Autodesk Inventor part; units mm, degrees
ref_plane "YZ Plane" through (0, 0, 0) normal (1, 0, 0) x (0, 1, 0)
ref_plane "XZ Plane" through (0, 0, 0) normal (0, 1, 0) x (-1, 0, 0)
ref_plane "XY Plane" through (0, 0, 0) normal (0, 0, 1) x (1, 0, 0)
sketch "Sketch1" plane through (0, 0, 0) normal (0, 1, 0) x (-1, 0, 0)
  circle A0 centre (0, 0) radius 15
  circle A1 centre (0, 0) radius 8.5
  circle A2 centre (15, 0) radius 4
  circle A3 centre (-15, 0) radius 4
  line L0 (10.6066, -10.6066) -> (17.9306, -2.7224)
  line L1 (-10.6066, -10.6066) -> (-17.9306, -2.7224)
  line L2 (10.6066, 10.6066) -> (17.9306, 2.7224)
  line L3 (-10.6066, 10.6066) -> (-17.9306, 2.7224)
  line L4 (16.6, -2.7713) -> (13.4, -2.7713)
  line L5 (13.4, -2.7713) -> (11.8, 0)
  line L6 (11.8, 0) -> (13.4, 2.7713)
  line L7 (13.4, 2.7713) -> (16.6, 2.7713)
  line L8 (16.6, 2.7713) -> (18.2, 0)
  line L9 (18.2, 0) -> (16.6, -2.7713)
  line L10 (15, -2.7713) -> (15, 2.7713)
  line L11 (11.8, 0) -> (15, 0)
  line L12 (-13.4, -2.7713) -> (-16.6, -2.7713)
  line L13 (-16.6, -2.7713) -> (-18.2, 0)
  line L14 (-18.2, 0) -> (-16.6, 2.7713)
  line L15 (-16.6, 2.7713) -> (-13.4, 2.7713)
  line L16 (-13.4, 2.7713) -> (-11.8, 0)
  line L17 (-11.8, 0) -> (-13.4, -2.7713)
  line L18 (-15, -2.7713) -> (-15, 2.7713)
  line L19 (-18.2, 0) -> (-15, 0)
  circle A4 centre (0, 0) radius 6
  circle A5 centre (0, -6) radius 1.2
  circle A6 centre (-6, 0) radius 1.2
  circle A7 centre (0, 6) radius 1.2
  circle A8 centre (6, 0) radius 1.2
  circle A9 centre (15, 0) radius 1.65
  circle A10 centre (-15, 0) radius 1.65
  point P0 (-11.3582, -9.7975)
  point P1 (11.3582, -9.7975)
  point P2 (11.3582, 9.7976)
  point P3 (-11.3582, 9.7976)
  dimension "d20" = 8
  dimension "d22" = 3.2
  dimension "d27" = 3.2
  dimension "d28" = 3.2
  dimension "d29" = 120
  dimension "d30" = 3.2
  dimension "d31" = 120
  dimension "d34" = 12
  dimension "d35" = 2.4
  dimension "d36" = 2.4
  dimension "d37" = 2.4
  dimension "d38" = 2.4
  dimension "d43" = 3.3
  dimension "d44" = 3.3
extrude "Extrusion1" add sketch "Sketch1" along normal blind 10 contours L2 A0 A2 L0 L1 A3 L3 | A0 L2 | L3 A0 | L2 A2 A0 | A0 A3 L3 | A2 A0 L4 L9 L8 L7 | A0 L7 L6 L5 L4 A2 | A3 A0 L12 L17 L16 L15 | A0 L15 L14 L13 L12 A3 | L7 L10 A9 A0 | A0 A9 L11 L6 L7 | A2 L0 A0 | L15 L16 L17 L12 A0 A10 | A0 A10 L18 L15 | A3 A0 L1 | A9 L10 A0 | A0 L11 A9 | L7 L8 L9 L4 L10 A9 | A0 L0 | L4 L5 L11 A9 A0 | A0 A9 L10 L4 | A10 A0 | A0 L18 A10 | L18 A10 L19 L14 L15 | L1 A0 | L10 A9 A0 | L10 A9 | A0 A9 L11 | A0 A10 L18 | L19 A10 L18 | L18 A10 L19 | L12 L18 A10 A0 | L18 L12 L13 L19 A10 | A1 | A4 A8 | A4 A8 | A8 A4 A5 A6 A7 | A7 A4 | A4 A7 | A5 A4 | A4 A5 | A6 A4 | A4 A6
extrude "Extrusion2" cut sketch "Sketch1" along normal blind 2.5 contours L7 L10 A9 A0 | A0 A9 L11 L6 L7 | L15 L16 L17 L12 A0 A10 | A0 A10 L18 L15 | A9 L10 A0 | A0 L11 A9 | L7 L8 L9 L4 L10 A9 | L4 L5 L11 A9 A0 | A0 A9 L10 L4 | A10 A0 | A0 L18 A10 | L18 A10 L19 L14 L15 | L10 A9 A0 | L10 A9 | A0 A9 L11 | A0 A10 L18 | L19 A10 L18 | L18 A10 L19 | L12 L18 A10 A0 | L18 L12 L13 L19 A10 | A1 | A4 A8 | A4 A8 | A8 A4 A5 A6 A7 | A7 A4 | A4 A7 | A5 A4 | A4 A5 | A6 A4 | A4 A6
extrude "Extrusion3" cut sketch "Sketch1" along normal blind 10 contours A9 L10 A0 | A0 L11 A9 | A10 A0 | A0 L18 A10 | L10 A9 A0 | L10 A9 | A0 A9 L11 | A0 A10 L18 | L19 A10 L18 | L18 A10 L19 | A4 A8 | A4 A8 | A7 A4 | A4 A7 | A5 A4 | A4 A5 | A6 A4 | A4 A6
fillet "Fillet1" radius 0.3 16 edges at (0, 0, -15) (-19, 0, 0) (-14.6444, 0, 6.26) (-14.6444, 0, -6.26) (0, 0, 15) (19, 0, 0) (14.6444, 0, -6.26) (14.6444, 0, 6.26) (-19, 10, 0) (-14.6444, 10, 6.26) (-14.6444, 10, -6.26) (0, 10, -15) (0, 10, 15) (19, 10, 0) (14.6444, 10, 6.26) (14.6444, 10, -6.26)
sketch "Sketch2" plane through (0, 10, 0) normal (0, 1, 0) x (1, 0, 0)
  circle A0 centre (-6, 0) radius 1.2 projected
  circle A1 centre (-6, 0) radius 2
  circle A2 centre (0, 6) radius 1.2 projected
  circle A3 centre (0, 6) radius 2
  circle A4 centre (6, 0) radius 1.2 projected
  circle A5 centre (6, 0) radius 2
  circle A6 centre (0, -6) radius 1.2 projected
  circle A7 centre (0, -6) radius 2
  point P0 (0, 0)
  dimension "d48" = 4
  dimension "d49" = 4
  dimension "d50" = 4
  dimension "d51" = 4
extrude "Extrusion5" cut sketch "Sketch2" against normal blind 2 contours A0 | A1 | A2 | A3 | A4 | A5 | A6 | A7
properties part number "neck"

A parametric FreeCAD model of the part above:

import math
import FreeCAD as App
import Part
import Sketcher
Q = App.Units.Quantity


def edges_at(feature, points):
    """Names of the edges that pass closest to the given points."""
    edges = feature.Shape.Edges
    near = lambda p: min(range(len(edges)), key=lambda i: edges[i].distToShape(Part.Vertex(*p))[0])
    return sorted({f"Edge{near(p) + 1}" for p in points})

doc = App.newDocument("Part")
body = doc.addObject("PartDesign::Body", "Body")

# Sketch on XZ plane
sketch1 = body.newObject("Sketcher::SketchObject", "Sketch")
sketch1.AttachmentSupport = (doc.getObject("XZ_Plane"), [""])
sketch1.MapMode = "FlatFace"
sketch1.addGeometry(Part.LineSegment(App.Vector(-11.358239, -9.79747, 0), App.Vector(-17.9306, -2.7224, 0)), False)
sketch1.addGeometry(Part.ArcOfCircle(Part.Circle(App.Vector(-15, 0, 0), App.Vector(0, 0, 1), 4), math.radians(137.10925), math.radians(222.89075)), False)
sketch1.addGeometry(Part.LineSegment(App.Vector(-17.9306, 2.7224, 0), App.Vector(-11.358239, 9.79747, 0)), False)
sketch1.addGeometry(Part.ArcOfCircle(Part.Circle(App.Vector(0, 0, 0), App.Vector(0, 0, 1), 15), math.radians(40.780631), math.radians(139.219369)), False)
sketch1.addGeometry(Part.LineSegment(App.Vector(11.358239, 9.79747, 0), App.Vector(17.9306, 2.7224, 0)), False)
sketch1.addGeometry(Part.ArcOfCircle(Part.Circle(App.Vector(15, 0, 0), App.Vector(0, 0, 1), 4), math.radians(-42.89075), math.radians(42.89075)), False)
sketch1.addGeometry(Part.LineSegment(App.Vector(17.9306, -2.7224, 0), App.Vector(11.358239, -9.79747, 0)), False)
sketch1.addGeometry(Part.ArcOfCircle(Part.Circle(App.Vector(0, 0, 0), App.Vector(0, 0, 1), 15), math.radians(-139.219369), math.radians(-40.780631)), False)
sketch1.addConstraint(Sketcher.Constraint("Tangent", 0, 2, 1, 2))
sketch1.addConstraint(Sketcher.Constraint("Tangent", 1, 1, 2, 1))
sketch1.addConstraint(Sketcher.Constraint("Coincident", 2, 2, 3, 2))
sketch1.addConstraint(Sketcher.Constraint("Coincident", 3, 1, 4, 1))
sketch1.addConstraint(Sketcher.Constraint("Tangent", 4, 2, 5, 2))
sketch1.addConstraint(Sketcher.Constraint("Tangent", 5, 1, 6, 1))
sketch1.addConstraint(Sketcher.Constraint("Coincident", 6, 2, 7, 2))
sketch1.addConstraint(Sketcher.Constraint("Coincident", 7, 1, 0, 1))
sketch1.addConstraint(Sketcher.Constraint("Coincident", 3, 3, -1, 1))
sketch1.addConstraint(Sketcher.Constraint("Coincident", 7, 3, -1, 1))
sketch1.addConstraint(Sketcher.Constraint("Equal", 1, 5))
sketch1.addConstraint(Sketcher.Constraint("Equal", 3, 7))
sketch1.addConstraint(Sketcher.Constraint("Symmetric", 1, 3, 5, 3, -1, 1))
sketch1.addConstraint(Sketcher.Constraint("Symmetric", 1, 1, 4, 2, -2))
sketch1.addConstraint(Sketcher.Constraint("Parallel", 0, 4))
sketch1.addConstraint(Sketcher.Constraint("Parallel", 2, 6))
sketch1.addConstraint(Sketcher.Constraint("Radius", 1, Q("4 mm")))
sketch1.addConstraint(Sketcher.Constraint("Radius", 3, Q("15 mm")))
sketch1.addConstraint(Sketcher.Constraint("DistanceX", 1, 3, -1, 1, Q("15 mm")))
sketch1.addConstraint(Sketcher.Constraint("Angle", 0, Q("132.8904 deg")))
pad1 = body.newObject("PartDesign::Pad", "Pad")
pad1.Profile = sketch1
pad1.Length = 10
pad1.Reversed = True

# Sketch on XZ plane
sketch2 = body.newObject("Sketcher::SketchObject", "Sketch001")
sketch2.AttachmentSupport = (doc.getObject("XZ_Plane"), [""])
sketch2.MapMode = "FlatFace"
sketch2.addGeometry(Part.LineSegment(App.Vector(-13.4, 2.7713, 0), App.Vector(-11.8, 0, 0)), False)
sketch2.addGeometry(Part.LineSegment(App.Vector(-11.8, 0, 0), App.Vector(-13.4, -2.7713, 0)), False)
sketch2.addGeometry(Part.LineSegment(App.Vector(-13.4, -2.7713, 0), App.Vector(-16.6, -2.7713, 0)), False)
sketch2.addGeometry(Part.LineSegment(App.Vector(-16.6, -2.7713, 0), App.Vector(-18.2, 0, 0)), False)
sketch2.addGeometry(Part.LineSegment(App.Vector(-18.2, 0, 0), App.Vector(-16.6, 2.7713, 0)), False)
sketch2.addGeometry(Part.LineSegment(App.Vector(-16.6, 2.7713, 0), App.Vector(-13.4, 2.7713, 0)), False)
sketch2.addGeometry(Part.LineSegment(App.Vector(13.4, 2.7713, 0), App.Vector(16.6, 2.7713, 0)), False)
sketch2.addGeometry(Part.LineSegment(App.Vector(16.6, 2.7713, 0), App.Vector(18.2, 0, 0)), False)
sketch2.addGeometry(Part.LineSegment(App.Vector(18.2, 0, 0), App.Vector(16.6, -2.7713, 0)), False)
sketch2.addGeometry(Part.LineSegment(App.Vector(16.6, -2.7713, 0), App.Vector(13.4, -2.7713, 0)), False)
sketch2.addGeometry(Part.LineSegment(App.Vector(13.4, -2.7713, 0), App.Vector(11.8, 0, 0)), False)
sketch2.addGeometry(Part.LineSegment(App.Vector(11.8, 0, 0), App.Vector(13.4, 2.7713, 0)), False)
sketch2.addGeometry(Part.Circle(App.Vector(0, 0, 0), App.Vector(0, 0, 1), 8.5), False)
sketch2.addConstraint(Sketcher.Constraint("Coincident", 0, 2, 1, 1))
sketch2.addConstraint(Sketcher.Constraint("Coincident", 1, 2, 2, 1))
sketch2.addConstraint(Sketcher.Constraint("Coincident", 2, 2, 3, 1))
sketch2.addConstraint(Sketcher.Constraint("Coincident", 3, 2, 4, 1))
sketch2.addConstraint(Sketcher.Constraint("Coincident", 4, 2, 5, 1))
sketch2.addConstraint(Sketcher.Constraint("Coincident", 5, 2, 0, 1))
sketch2.addConstraint(Sketcher.Constraint("Coincident", 6, 2, 7, 1))
sketch2.addConstraint(Sketcher.Constraint("Coincident", 7, 2, 8, 1))
sketch2.addConstraint(Sketcher.Constraint("Coincident", 8, 2, 9, 1))
sketch2.addConstraint(Sketcher.Constraint("Coincident", 9, 2, 10, 1))
sketch2.addConstraint(Sketcher.Constraint("Coincident", 10, 2, 11, 1))
sketch2.addConstraint(Sketcher.Constraint("Coincident", 11, 2, 6, 1))
sketch2.addConstraint(Sketcher.Constraint("Horizontal", 2))
sketch2.addConstraint(Sketcher.Constraint("Horizontal", 5))
sketch2.addConstraint(Sketcher.Constraint("Horizontal", 6))
sketch2.addConstraint(Sketcher.Constraint("Horizontal", 9))
sketch2.addConstraint(Sketcher.Constraint("Coincident", 12, 3, -1, 1))
sketch2.addConstraint(Sketcher.Constraint("Symmetric", 2, 2, 6, 2, -1, 1))
sketch2.addConstraint(Sketcher.Constraint("Symmetric", 3, 2, 7, 2, -1, 1))
sketch2.addConstraint(Sketcher.Constraint("Symmetric", 4, 2, 8, 2, -1, 1))
sketch2.addConstraint(Sketcher.Constraint("Symmetric", 0, 2, 10, 2, -1, 1))
sketch2.addConstraint(Sketcher.Constraint("Symmetric", 4, 2, 6, 2, -2))
sketch2.addConstraint(Sketcher.Constraint("PointOnObject", 0, 2, -1))
sketch2.addConstraint(Sketcher.Constraint("PointOnObject", 3, 2, -1))
sketch2.addConstraint(Sketcher.Constraint("Parallel", 0, 3))
sketch2.addConstraint(Sketcher.Constraint("Parallel", 1, 4))
sketch2.addConstraint(Sketcher.Constraint("Parallel", 7, 10))
sketch2.addConstraint(Sketcher.Constraint("Parallel", 8, 11))
sketch2.addConstraint(Sketcher.Constraint("Angle", 1, Q("-119.9998 deg")))
sketch2.addConstraint(Sketcher.Constraint("Diameter", 12, Q("17 mm")))
sketch2.addConstraint(Sketcher.Constraint("DistanceX", 2, 2, 2, 1, Q("3.2 mm")))
sketch2.addConstraint(Sketcher.Constraint("Distance", 0, Q("3.2 mm")))
sketch2.addConstraint(Sketcher.Constraint("DistanceX", 5, 2, 6, 2, Q("30 mm")))
pocket1 = body.newObject("PartDesign::Pocket", "Pocket")
pocket1.Profile = sketch2
pocket1.Length = 2.5

# Sketch on XZ plane
sketch3 = body.newObject("Sketcher::SketchObject", "Sketch002")
sketch3.AttachmentSupport = (doc.getObject("XZ_Plane"), [""])
sketch3.MapMode = "FlatFace"
sketch3.addGeometry(Part.Circle(App.Vector(-15, 0, 0), App.Vector(0, 0, 1), 1.65), False)
sketch3.addGeometry(Part.Circle(App.Vector(15, 0, 0), App.Vector(0, 0, 1), 1.65), False)
sketch3.addGeometry(Part.Circle(App.Vector(-6, 0, 0), App.Vector(0, 0, 1), 1.2), False)
sketch3.addGeometry(Part.Circle(App.Vector(0, 6, 0), App.Vector(0, 0, 1), 1.2), False)
sketch3.addGeometry(Part.Circle(App.Vector(0, -6, 0), App.Vector(0, 0, 1), 1.2), False)
sketch3.addGeometry(Part.Circle(App.Vector(6, 0, 0), App.Vector(0, 0, 1), 1.2), False)
sketch3.addConstraint(Sketcher.Constraint("Equal", 0, 1))
sketch3.addConstraint(Sketcher.Constraint("Equal", 2, 3))
sketch3.addConstraint(Sketcher.Constraint("Equal", 3, 4))
sketch3.addConstraint(Sketcher.Constraint("Equal", 4, 5))
sketch3.addConstraint(Sketcher.Constraint("Symmetric", 0, 3, 1, 3, -1, 1))
sketch3.addConstraint(Sketcher.Constraint("Symmetric", 3, 3, 4, 3, -1, 1))
sketch3.addConstraint(Sketcher.Constraint("Symmetric", 2, 3, 5, 3, -1, 1))
sketch3.addConstraint(Sketcher.Constraint("PointOnObject", 0, 3, -1))
sketch3.addConstraint(Sketcher.Constraint("PointOnObject", 2, 3, -1))
sketch3.addConstraint(Sketcher.Constraint("PointOnObject", 3, 3, -2))
sketch3.addConstraint(Sketcher.Constraint("Diameter", 0, Q("3.3 mm")))
sketch3.addConstraint(Sketcher.Constraint("Diameter", 2, Q("2.4 mm")))
sketch3.addConstraint(Sketcher.Constraint("DistanceY", 4, 3, 3, 3, Q("12 mm")))
sketch3.addConstraint(Sketcher.Constraint("DistanceX", 2, 3, 5, 3, Q("12 mm")))
sketch3.addConstraint(Sketcher.Constraint("DistanceX", 0, 3, -1, 1, Q("15 mm")))
pocket2 = body.newObject("PartDesign::Pocket", "Pocket001")
pocket2.Profile = sketch3
pocket2.Length = 10
doc.recompute()

fillet = body.newObject("PartDesign::Fillet", "Fillet")
fillet.Base = (pocket2, edges_at(pocket2, [
    (0, 0, -15),
    (-19, 0, 0),
    (-14.644, 0, 6.26),
    (-14.644, 0, -6.26),
    (0, 0, 15),
    (19, 0, 0),
    (14.644, 0, -6.26),
    (14.644, 0, 6.26),
    (-19, 10, 0),
    (-14.644, 10, 6.26),
    (-14.644, 10, -6.26),
    (0, 10, -15),
    (0, 10, 15),
    (19, 10, 0),
    (14.644, 10, 6.26),
    (14.644, 10, -6.26),
]))
fillet.Radius = 0.3

# Sketch on XZ plane
sketch4 = body.newObject("Sketcher::SketchObject", "Sketch003")
sketch4.AttachmentSupport = (doc.getObject("XZ_Plane"), [""])
sketch4.MapMode = "FlatFace"
sketch4.AttachmentOffset = App.Placement(App.Vector(0, 0, -10), App.Rotation())
sketch4.addGeometry(Part.Circle(App.Vector(-6, 0, 0), App.Vector(0, 0, 1), 2), False)
sketch4.addGeometry(Part.Circle(App.Vector(0, -6, 0), App.Vector(0, 0, 1), 2), False)
sketch4.addGeometry(Part.Circle(App.Vector(6, 0, 0), App.Vector(0, 0, 1), 2), False)
sketch4.addGeometry(Part.Circle(App.Vector(0, 6, 0), App.Vector(0, 0, 1), 2), False)
sketch4.addConstraint(Sketcher.Constraint("Equal", 0, 1))
sketch4.addConstraint(Sketcher.Constraint("Equal", 1, 2))
sketch4.addConstraint(Sketcher.Constraint("Equal", 2, 3))
sketch4.addConstraint(Sketcher.Constraint("Symmetric", 0, 3, 2, 3, -1, 1))
sketch4.addConstraint(Sketcher.Constraint("Symmetric", 1, 3, 3, 3, -1, 1))
sketch4.addConstraint(Sketcher.Constraint("PointOnObject", 0, 3, -1))
sketch4.addConstraint(Sketcher.Constraint("PointOnObject", 1, 3, -2))
sketch4.addConstraint(Sketcher.Constraint("Diameter", 0, Q("4 mm")))
sketch4.addConstraint(Sketcher.Constraint("DistanceX", 0, 3, -1, 1, Q("6 mm")))
sketch4.addConstraint(Sketcher.Constraint("DistanceY", 1, 3, -1, 1, Q("6 mm")))
pocket3 = body.newObject("PartDesign::Pocket", "Pocket002")
pocket3.Profile = sketch4
pocket3.Length = 2
pocket3.Reversed = True

doc.recompute()
